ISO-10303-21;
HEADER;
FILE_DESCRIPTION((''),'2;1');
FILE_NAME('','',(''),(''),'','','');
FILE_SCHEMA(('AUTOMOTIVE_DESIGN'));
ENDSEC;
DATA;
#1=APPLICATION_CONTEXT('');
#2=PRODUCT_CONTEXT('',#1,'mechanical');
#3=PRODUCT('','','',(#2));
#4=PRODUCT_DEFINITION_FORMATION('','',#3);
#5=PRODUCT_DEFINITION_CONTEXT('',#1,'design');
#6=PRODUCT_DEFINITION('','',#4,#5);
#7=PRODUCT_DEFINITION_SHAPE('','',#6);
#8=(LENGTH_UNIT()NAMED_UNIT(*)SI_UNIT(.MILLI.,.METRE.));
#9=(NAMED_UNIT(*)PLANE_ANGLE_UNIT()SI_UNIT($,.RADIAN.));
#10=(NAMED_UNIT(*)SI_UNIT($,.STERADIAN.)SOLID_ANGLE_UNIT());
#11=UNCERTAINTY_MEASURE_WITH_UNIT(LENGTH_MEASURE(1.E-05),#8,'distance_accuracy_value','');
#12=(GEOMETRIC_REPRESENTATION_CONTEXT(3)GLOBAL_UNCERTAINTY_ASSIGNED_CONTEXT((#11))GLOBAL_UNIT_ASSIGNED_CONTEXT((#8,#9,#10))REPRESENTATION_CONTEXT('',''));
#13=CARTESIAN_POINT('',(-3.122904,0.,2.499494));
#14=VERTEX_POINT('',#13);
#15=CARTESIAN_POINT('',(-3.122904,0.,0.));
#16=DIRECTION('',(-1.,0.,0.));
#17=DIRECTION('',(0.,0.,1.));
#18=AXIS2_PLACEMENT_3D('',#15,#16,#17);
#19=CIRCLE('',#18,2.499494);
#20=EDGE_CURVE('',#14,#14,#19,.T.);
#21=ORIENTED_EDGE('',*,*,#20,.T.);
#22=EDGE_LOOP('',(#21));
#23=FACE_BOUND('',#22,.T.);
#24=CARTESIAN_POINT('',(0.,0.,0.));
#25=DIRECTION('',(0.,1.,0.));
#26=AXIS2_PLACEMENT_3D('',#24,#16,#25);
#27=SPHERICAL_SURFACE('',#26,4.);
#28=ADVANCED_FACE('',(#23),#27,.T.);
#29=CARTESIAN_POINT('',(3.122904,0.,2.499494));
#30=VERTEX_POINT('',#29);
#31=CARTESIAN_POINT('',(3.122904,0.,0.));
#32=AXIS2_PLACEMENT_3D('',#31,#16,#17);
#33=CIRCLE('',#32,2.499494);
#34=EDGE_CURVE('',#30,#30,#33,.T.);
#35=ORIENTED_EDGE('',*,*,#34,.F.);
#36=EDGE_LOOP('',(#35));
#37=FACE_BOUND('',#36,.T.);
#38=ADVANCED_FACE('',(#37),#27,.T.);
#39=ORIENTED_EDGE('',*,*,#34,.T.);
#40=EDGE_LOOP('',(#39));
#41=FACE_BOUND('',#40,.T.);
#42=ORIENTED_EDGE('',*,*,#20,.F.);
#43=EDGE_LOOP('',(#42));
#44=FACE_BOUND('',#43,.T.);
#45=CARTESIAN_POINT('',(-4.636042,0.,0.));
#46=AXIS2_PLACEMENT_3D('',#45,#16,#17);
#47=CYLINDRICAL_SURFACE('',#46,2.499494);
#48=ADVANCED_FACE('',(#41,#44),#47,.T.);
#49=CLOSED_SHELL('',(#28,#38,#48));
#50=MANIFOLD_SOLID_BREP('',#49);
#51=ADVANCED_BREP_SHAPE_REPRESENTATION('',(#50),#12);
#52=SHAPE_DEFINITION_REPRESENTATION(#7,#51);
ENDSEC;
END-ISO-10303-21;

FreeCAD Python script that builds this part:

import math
import FreeCAD as App
import Part
import Sketcher

V = App.Vector

doc = App.newDocument("Part")
body = doc.addObject("PartDesign::Body", "Body")

sketch1 = body.newObject("Sketcher::SketchObject", "Sketch")
sketch1.AttachmentSupport = (doc.getObject("XY_Plane"), [""])
sketch1.MapMode = "FlatFace"
sketch1.addGeometry([
    Part.LineSegment(V(3.1, 2.5, 0), V(-3.1, 2.5, 0)),
    Part.ArcOfCircle(Part.Circle(V(0, 0, 0), V(0, 0, 1), 4), math.radians(141), math.radians(180)),
    Part.LineSegment(V(-4, 0, 0), V(4, 0, 0)),
    Part.ArcOfCircle(Part.Circle(V(0, 0, 0), V(0, 0, 1), 4), math.radians(0), math.radians(39)),
], False)
sketch1.addConstraint([
    Sketcher.Constraint("Coincident", 0, 2, 1, 1),
    Sketcher.Constraint("Coincident", 1, 2, 2, 1),
    Sketcher.Constraint("Coincident", 2, 2, 3, 1),
    Sketcher.Constraint("Coincident", 3, 2, 0, 1),
    Sketcher.Constraint("Horizontal", 0),
    Sketcher.Constraint("Horizontal", 2),
    Sketcher.Constraint("Coincident", 1, 3, -1, 1),
    Sketcher.Constraint("Coincident", 3, 3, -1, 1),
    Sketcher.Constraint("Equal", 1, 3),
    Sketcher.Constraint("PointOnObject", 1, 2, -1),
    Sketcher.Constraint("Radius", 1, 4.0),
    Sketcher.Constraint("DistanceX", 0, 2, 0, 1, 6.245808),
])
revolution = body.newObject("PartDesign::Revolution", "Revolution")
revolution.Profile = sketch1
revolution.ReferenceAxis = (sketch1, ["H_Axis"])
revolution.Angle = 360

doc.recompute()
